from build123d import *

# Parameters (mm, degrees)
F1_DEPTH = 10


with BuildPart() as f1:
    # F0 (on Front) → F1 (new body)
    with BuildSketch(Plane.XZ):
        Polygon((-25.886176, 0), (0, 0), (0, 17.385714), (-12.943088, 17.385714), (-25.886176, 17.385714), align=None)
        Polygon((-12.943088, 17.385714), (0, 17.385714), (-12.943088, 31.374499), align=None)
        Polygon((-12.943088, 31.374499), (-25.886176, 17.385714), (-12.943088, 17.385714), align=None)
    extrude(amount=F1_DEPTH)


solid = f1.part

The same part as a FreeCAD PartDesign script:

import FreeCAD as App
import Part
import Sketcher
Q = App.Units.Quantity


def add_polygon(sketch, points):
    """Adds a closed chain of lines whose ends are joined by coincident constraints."""
    first, n = sketch.GeometryCount, len(points)
    for a, b in zip(points, points[1:] + points[:1]):
        sketch.addGeometry(Part.LineSegment(App.Vector(*a, 0), App.Vector(*b, 0)), False)
    for i in range(n):
        sketch.addConstraint(Sketcher.Constraint("Coincident", first + i, 2, first + (i + 1) % n, 1))

doc = App.newDocument("Part")
params = doc.addObject("Spreadsheet::Sheet", "Params")
for row, (alias, value) in enumerate([
    ("pad1_length", "10 mm"),
], start=1):
    params.set(f"A{row}", alias)
    params.set(f"B{row}", "=" + value)
    params.setAlias(f"B{row}", alias)

body = doc.addObject("PartDesign::Body", "Body")

sketch1 = doc.addObject("Sketcher::SketchObject", "Sketch")
body.addObject(sketch1)
sketch1.AttachmentSupport = (doc.XZ_Plane, [""])
sketch1.MapMode = "FlatFace"
add_polygon(sketch1, [(-25.886176, 0), (0, 0), (0, 17.385714), (-12.943088, 31.374499), (-25.886176, 17.385714)])
sketch1.addConstraint([
    Sketcher.Constraint("Horizontal", 0),
    Sketcher.Constraint("Vertical", 1),
    Sketcher.Constraint("Vertical", 4),
    Sketcher.Constraint("Coincident", 0, 2, -1, 1),
    Sketcher.Constraint("Horizontal", 1, 2, 3, 2),
    Sketcher.Constraint("Equal", 2, 3),
    Sketcher.Constraint("DistanceY", -1, 1, 2, 2, Q("31.374499 mm")),
    Sketcher.Constraint("Distance", 2, Q("19.05806 mm")),
    Sketcher.Constraint("DistanceX", 0, 1, 0, 2, Q("25.886176 mm")),
])
pad1 = doc.addObject("PartDesign::Pad", "Pad")
body.addObject(pad1)
pad1.Profile = sketch1
pad1.setExpression("Length", "Params.pad1_length")

doc.recompute()
